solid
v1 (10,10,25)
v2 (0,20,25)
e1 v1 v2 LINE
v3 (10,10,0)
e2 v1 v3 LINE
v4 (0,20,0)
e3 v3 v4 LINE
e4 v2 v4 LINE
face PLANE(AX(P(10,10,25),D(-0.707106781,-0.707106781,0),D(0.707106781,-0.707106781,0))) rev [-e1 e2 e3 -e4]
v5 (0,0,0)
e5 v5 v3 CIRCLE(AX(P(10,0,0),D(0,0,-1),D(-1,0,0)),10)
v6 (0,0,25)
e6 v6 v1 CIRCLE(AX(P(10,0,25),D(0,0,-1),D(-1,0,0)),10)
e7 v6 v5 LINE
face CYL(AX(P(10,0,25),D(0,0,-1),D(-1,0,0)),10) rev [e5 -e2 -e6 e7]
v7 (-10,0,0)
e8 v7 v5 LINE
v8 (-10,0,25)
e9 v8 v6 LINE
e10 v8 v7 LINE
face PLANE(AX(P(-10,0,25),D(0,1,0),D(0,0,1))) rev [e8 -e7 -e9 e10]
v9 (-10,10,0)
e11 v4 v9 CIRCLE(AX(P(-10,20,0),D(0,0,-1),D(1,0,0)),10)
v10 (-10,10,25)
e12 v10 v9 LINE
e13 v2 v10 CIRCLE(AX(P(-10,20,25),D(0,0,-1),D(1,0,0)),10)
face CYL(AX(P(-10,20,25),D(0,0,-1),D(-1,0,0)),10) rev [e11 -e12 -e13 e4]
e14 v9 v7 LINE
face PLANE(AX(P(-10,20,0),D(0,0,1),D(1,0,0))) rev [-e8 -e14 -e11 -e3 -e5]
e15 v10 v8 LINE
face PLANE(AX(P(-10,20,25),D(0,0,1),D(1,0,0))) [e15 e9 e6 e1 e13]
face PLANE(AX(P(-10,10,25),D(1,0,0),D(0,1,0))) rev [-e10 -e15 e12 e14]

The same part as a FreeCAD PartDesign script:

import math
import FreeCAD as App
import Part
import Sketcher
Q = App.Units.Quantity

doc = App.newDocument("Part")
body = doc.addObject("PartDesign::Body", "Body")

sketch1 = body.newObject("Sketcher::SketchObject", "Sketch")
sketch1.AttachmentSupport = (doc.getObject("XY_Plane"), [""])
sketch1.MapMode = "FlatFace"
sketch1.addGeometry([
    Part.LineSegment(App.Vector(-10, 10, 0), App.Vector(-10, 0, 0)),
    Part.LineSegment(App.Vector(-10, 0, 0), App.Vector(0, 0, 0)),
    Part.ArcOfCircle(Part.Circle(App.Vector(10, 0, 0), App.Vector(0, 0, 1), 10), math.radians(90), math.radians(180)),
    Part.LineSegment(App.Vector(10, 10, 0), App.Vector(0, 20, 0)),
    Part.ArcOfCircle(Part.Circle(App.Vector(-10, 20, 0), App.Vector(0, 0, 1), 10), math.radians(-90), math.radians(0)),
], False)
sketch1.addConstraint([
    Sketcher.Constraint("Coincident", 0, 2, 1, 1),
    Sketcher.Constraint("Coincident", 1, 2, 2, 2),
    Sketcher.Constraint("Coincident", 2, 1, 3, 1),
    Sketcher.Constraint("Coincident", 3, 2, 4, 2),
    Sketcher.Constraint("Coincident", 4, 1, 0, 1),
    Sketcher.Constraint("Vertical", 0),
    Sketcher.Constraint("Horizontal", 1),
    Sketcher.Constraint("Coincident", 1, 2, -1, 1),
    Sketcher.Constraint("Equal", 2, 4),
    Sketcher.Constraint("Symmetric", 2, 1, 4, 1, -2),
    Sketcher.Constraint("PointOnObject", 2, 3, -1),
    Sketcher.Constraint("PointOnObject", 3, 2, -2),
    Sketcher.Constraint("Horizontal", 4, 3, 3, 2),
    Sketcher.Constraint("Vertical", 4, 3, 0, 2),
    Sketcher.Constraint("Radius", 2, Q("10 mm")),
])
pad1 = body.newObject("PartDesign::Pad", "Pad")
pad1.Profile = sketch1
pad1.Length = 25

doc.recompute()
